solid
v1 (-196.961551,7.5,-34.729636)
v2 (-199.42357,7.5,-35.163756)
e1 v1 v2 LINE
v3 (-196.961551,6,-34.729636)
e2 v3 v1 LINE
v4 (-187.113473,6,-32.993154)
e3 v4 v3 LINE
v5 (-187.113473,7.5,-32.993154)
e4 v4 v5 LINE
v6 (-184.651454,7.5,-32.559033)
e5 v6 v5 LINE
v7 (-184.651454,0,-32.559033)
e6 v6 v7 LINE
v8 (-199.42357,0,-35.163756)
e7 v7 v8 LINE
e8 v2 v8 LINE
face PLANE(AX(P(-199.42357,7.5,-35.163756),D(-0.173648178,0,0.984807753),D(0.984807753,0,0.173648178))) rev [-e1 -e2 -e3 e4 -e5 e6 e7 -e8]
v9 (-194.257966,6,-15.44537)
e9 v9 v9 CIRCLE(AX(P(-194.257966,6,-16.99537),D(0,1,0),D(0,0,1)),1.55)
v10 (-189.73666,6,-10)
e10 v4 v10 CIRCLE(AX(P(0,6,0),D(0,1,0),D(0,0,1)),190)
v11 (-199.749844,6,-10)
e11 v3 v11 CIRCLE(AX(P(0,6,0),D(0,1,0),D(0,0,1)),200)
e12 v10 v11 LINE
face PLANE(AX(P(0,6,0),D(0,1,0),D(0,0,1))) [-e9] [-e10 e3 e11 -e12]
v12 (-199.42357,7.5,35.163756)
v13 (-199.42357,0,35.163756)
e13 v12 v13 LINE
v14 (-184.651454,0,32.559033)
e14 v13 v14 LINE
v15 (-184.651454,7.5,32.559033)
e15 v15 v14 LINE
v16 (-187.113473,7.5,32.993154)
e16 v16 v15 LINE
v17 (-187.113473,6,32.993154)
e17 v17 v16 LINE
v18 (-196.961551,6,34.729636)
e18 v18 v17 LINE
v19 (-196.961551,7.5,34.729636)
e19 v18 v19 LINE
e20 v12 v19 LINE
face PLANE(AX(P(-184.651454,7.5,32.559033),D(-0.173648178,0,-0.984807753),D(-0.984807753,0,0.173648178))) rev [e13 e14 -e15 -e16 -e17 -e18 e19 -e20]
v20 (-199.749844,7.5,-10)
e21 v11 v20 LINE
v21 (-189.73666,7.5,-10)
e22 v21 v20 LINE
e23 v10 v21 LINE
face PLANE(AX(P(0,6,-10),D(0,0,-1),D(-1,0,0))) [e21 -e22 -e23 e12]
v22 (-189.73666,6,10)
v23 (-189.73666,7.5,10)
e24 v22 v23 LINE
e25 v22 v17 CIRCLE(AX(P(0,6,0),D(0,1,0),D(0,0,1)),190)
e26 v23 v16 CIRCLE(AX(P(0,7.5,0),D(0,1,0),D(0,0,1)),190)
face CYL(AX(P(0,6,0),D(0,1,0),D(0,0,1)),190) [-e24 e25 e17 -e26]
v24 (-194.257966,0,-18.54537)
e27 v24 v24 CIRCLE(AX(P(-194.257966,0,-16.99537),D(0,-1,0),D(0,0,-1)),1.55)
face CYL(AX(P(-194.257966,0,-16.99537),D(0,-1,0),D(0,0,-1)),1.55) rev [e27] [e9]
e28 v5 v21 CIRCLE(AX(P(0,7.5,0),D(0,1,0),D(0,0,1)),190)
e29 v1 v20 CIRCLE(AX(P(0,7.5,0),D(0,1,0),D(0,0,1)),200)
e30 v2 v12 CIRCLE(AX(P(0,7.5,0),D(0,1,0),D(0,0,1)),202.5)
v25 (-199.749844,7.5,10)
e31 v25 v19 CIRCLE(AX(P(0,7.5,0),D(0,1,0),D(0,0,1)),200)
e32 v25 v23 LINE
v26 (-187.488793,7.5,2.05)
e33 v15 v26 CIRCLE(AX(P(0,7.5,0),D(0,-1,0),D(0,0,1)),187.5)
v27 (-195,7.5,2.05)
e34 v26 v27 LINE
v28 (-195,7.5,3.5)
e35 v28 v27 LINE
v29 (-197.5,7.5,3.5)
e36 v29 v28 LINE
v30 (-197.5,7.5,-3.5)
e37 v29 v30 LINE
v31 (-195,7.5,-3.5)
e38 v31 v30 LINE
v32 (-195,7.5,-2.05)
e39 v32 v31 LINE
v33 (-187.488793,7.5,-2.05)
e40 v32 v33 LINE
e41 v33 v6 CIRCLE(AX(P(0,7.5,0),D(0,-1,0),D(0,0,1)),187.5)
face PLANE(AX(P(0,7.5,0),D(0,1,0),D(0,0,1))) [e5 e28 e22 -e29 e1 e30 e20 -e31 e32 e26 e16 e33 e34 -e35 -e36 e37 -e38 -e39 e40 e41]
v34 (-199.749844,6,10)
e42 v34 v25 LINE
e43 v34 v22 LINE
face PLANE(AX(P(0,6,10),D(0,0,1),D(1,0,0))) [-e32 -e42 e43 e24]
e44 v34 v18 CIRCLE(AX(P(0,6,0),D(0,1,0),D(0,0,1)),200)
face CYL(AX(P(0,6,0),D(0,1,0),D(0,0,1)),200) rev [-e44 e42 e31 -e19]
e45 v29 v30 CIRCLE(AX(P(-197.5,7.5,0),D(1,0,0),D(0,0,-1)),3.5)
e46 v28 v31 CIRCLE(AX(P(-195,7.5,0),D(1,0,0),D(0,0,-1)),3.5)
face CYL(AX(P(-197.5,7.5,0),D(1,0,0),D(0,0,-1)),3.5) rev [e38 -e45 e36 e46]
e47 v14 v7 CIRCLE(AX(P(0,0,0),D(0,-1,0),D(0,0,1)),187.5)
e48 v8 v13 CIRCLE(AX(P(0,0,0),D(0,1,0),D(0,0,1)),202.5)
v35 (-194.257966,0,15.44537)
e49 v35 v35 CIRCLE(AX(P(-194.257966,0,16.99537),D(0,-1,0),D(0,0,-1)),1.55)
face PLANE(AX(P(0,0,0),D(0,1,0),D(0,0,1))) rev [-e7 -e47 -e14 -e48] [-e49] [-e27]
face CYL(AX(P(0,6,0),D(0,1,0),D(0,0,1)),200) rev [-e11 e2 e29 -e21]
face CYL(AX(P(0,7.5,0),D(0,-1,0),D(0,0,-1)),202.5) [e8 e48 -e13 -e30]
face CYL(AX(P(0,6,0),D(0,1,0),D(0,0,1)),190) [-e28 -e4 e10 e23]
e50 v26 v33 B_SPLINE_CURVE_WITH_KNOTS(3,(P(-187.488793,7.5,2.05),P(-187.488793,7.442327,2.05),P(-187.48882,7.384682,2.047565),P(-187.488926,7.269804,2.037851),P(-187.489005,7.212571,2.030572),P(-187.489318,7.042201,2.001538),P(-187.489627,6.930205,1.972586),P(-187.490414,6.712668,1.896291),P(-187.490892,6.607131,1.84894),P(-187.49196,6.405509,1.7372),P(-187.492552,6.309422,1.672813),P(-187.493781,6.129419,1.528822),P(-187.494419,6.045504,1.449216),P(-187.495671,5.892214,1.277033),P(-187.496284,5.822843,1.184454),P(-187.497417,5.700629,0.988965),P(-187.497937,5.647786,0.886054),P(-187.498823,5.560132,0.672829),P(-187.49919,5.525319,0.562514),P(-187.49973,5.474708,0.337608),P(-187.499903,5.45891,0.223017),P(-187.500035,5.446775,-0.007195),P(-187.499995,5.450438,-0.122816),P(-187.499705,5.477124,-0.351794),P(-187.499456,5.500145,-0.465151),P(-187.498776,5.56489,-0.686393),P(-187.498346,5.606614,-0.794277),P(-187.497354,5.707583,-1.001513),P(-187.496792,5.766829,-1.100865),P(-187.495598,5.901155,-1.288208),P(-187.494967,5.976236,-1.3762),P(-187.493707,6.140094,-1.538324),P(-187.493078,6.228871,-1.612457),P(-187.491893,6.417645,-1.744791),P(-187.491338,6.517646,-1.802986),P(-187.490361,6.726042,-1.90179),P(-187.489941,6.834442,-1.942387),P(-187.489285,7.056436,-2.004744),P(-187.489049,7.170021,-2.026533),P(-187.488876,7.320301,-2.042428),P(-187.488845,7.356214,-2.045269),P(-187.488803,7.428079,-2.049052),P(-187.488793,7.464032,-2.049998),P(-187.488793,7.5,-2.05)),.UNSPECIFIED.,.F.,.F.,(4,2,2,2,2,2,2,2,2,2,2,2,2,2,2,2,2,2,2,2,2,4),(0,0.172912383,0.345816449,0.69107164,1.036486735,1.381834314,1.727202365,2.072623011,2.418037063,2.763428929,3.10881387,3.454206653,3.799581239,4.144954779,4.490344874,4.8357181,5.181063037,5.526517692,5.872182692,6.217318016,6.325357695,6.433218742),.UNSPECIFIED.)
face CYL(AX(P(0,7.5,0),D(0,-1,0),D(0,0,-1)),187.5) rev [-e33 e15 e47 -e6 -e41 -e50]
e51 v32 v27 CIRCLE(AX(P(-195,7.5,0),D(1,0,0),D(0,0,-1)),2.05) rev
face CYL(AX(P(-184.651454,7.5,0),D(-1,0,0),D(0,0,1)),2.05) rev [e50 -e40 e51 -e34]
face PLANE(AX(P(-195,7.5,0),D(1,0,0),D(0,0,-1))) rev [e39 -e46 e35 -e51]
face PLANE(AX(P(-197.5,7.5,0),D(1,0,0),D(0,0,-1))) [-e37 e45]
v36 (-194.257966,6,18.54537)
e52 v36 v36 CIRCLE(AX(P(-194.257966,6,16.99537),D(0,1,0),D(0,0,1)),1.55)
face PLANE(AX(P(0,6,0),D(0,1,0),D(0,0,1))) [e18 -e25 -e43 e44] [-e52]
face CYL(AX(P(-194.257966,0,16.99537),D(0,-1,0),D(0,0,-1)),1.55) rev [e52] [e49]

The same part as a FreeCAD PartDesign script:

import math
import FreeCAD as App
import Part
import Sketcher

V = App.Vector
Q = App.Units.Quantity

doc = App.newDocument("Part")
params = doc.addObject("Spreadsheet::Sheet", "Params")
for row, (alias, value) in enumerate([
    ("sketch1_radius", "202.5 mm"),
    ("sketch1_radius2", "187.5 mm"),
    ("pad1_length", "7.5 mm"),
    ("sketch2_radius", "200 mm"),
    ("sketch2_radius2", "190 mm"),
    ("pocket1_length", "1.5 mm"),
    ("sketch3_diameter", "7 mm"),
    ("pocket2_length", "2.5 mm"),
    ("sketch4_diameter", "4.1 mm"),
    ("sketch5_diameter", "3.1 mm"),
    ("hole_diameter", "3.1 mm"),
], start=1):
    params.set(f"A{row}", alias)
    params.set(f"B{row}", "=" + value)
    params.setAlias(f"B{row}", alias)

body = doc.addObject("PartDesign::Body", "Body")

sketch1 = body.newObject("Sketcher::SketchObject", "Sketch")
sketch1.AttachmentSupport = (doc.getObject("XZ_Plane"), [""])
sketch1.MapMode = "FlatFace"
sketch1.addGeometry(Part.LineSegment(V(-185, -33, 0), V(-199, -35, 0)), False)
sketch1.addGeometry(Part.ArcOfCircle(Part.Circle(V(0, 0, 0), V(0, 0, 1), 203), math.radians(170), math.radians(190)), False)
sketch1.addGeometry(Part.LineSegment(V(-199, 35, 0), V(-185, 33, 0)), False)
sketch1.addGeometry(Part.ArcOfCircle(Part.Circle(V(0, 0, 0), V(0, 0, 1), 188), math.radians(170), math.radians(190)), False)
sketch1.addConstraint(Sketcher.Constraint("Coincident", 0, 2, 1, 2))
sketch1.addConstraint(Sketcher.Constraint("Coincident", 1, 1, 2, 1))
sketch1.addConstraint(Sketcher.Constraint("Coincident", 2, 2, 3, 1))
sketch1.addConstraint(Sketcher.Constraint("Coincident", 3, 2, 0, 1))
sketch1.addConstraint(Sketcher.Constraint("Coincident", 1, 3, -1, 1))
sketch1.addConstraint(Sketcher.Constraint("Coincident", 3, 3, -1, 1))
sketch1.addConstraint(Sketcher.Constraint("Vertical", 0, 2, 1, 1))
sketch1.addConstraint(Sketcher.Constraint("Vertical", 2, 2, 3, 2))
sketch1.addConstraint(Sketcher.Constraint("Radius", 1, Q("202.5 mm")))
sketch1.addConstraint(Sketcher.Constraint("Radius", 3, Q("187.5 mm")))
sketch1.addConstraint(Sketcher.Constraint("Angle", 0, Q("-170 deg")))
sketch1.addConstraint(Sketcher.Constraint("DistanceX", 0, 2, -1, 1, Q("199.42357 mm")))
sketch1.setExpression("Constraints[8]", "Params.sketch1_radius")
sketch1.setExpression("Constraints[9]", "Params.sketch1_radius2")
pad1 = body.newObject("PartDesign::Pad", "Pad")
pad1.Profile = sketch1
pad1.setExpression("Length", "Params.pad1_length")
pad1.Reversed = True

sketch2 = body.newObject("Sketcher::SketchObject", "Sketch001")
sketch2.AttachmentSupport = (doc.getObject("XZ_Plane"), [""])
sketch2.MapMode = "FlatFace"
sketch2.AttachmentOffset = App.Placement(V(0, 0, -7.5), App.Rotation())
sketch2.addGeometry(Part.LineSegment(V(-187, -33, 0), V(-197, -35, 0)), False)
sketch2.addGeometry(Part.ArcOfCircle(Part.Circle(V(0, 0, 0), V(0, 0, 1), 200), math.radians(-177.13), math.radians(-170)), False)
sketch2.addGeometry(Part.LineSegment(V(-200, -10, 0), V(-190, -10, 0)), False)
sketch2.addGeometry(Part.ArcOfCircle(Part.Circle(V(0, 0, 0), V(0, 0, 1), 190), math.radians(-176.98), math.radians(-170)), False)
sketch2.addGeometry(Part.LineSegment(V(-190, 10, 0), V(-200, 10, 0)), False)
sketch2.addGeometry(Part.ArcOfCircle(Part.Circle(V(0, 0, 0), V(0, 0, 1), 200), math.radians(170), math.radians(177.13)), False)
sketch2.addGeometry(Part.LineSegment(V(-197, 35, 0), V(-187, 33, 0)), False)
sketch2.addGeometry(Part.ArcOfCircle(Part.Circle(V(0, 0, 0), V(0, 0, 1), 190), math.radians(170), math.radians(176.98)), False)
sketch2.addConstraint(Sketcher.Constraint("Coincident", 0, 2, 1, 2))
sketch2.addConstraint(Sketcher.Constraint("Coincident", 1, 1, 2, 1))
sketch2.addConstraint(Sketcher.Constraint("Coincident", 2, 2, 3, 1))
sketch2.addConstraint(Sketcher.Constraint("Coincident", 3, 2, 0, 1))
sketch2.addConstraint(Sketcher.Constraint("Coincident", 4, 2, 5, 2))
sketch2.addConstraint(Sketcher.Constraint("Coincident", 5, 1, 6, 1))
sketch2.addConstraint(Sketcher.Constraint("Coincident", 6, 2, 7, 1))
sketch2.addConstraint(Sketcher.Constraint("Coincident", 7, 2, 4, 1))
sketch2.addConstraint(Sketcher.Constraint("Horizontal", 2))
sketch2.addConstraint(Sketcher.Constraint("Horizontal", 4))
sketch2.addConstraint(Sketcher.Constraint("Coincident", 1, 3, -1, 1))
sketch2.addConstraint(Sketcher.Constraint("Coincident", 3, 3, -1, 1))
sketch2.addConstraint(Sketcher.Constraint("Coincident", 5, 3, -1, 1))
sketch2.addConstraint(Sketcher.Constraint("Coincident", 7, 3, -1, 1))
sketch2.addConstraint(Sketcher.Constraint("Equal", 1, 5))
sketch2.addConstraint(Sketcher.Constraint("Equal", 3, 7))
sketch2.addConstraint(Sketcher.Constraint("Vertical", 1, 1, 4, 2))
sketch2.addConstraint(Sketcher.Constraint("Vertical", 0, 2, 5, 1))
sketch2.addConstraint(Sketcher.Constraint("Vertical", 3, 2, 6, 2))
sketch2.addConstraint(Sketcher.Constraint("Radius", 1, Q("200 mm")))
sketch2.addConstraint(Sketcher.Constraint("Radius", 3, Q("190 mm")))
sketch2.addConstraint(Sketcher.Constraint("Angle", 0, Q("-170 deg")))
sketch2.addConstraint(Sketcher.Constraint("DistanceY", 1, 1, -1, 1, Q("10 mm")))
sketch2.addConstraint(Sketcher.Constraint("DistanceX", 0, 2, -1, 1, Q("196.961551 mm")))
sketch2.setExpression("Constraints[19]", "Params.sketch2_radius")
sketch2.setExpression("Constraints[20]", "Params.sketch2_radius2")
pocket1 = body.newObject("PartDesign::Pocket", "Pocket")
pocket1.Profile = sketch2
pocket1.setExpression("Length", "Params.pocket1_length")
pocket1.Reversed = True

sketch3 = body.newObject("Sketcher::SketchObject", "Sketch002")
sketch3.AttachmentSupport = (doc.getObject("YZ_Plane"), [""])
sketch3.MapMode = "FlatFace"
sketch3.AttachmentOffset = App.Placement(V(0, 0, -195), App.Rotation())
sketch3.addGeometry(Part.Circle(V(7.5, 0, 0), V(0, 0, 1), 3.5), False)
sketch3.addConstraint(Sketcher.Constraint("PointOnObject", 0, 3, -1))
sketch3.addConstraint(Sketcher.Constraint("Diameter", 0, Q("7 mm")))
sketch3.addConstraint(Sketcher.Constraint("DistanceX", -1, 1, 0, 3, Q("7.5 mm")))
sketch3.setExpression("Constraints[1]", "Params.sketch3_diameter")
pocket2 = body.newObject("PartDesign::Pocket", "Pocket001")
pocket2.Profile = sketch3
pocket2.setExpression("Length", "Params.pocket2_length")

sketch4 = body.newObject("Sketcher::SketchObject", "Sketch003")
sketch4.AttachmentSupport = (doc.getObject("YZ_Plane"), [""])
sketch4.MapMode = "FlatFace"
sketch4.AttachmentOffset = App.Placement(V(0, 0, -195), App.Rotation())
sketch4.addGeometry(Part.Circle(V(7.5, 0, 0), V(0, 0, 1), 2), False)
sketch4.addConstraint(Sketcher.Constraint("PointOnObject", 0, 3, -1))
sketch4.addConstraint(Sketcher.Constraint("Diameter", 0, Q("4.1 mm")))
sketch4.addConstraint(Sketcher.Constraint("DistanceX", -1, 1, 0, 3, Q("7.5 mm")))
sketch4.setExpression("Constraints[1]", "Params.sketch4_diameter")
pocket3 = body.newObject("PartDesign::Pocket", "Pocket002")
pocket3.Profile = sketch4
pocket3.Type = "ThroughAll"
pocket3.Reversed = True

sketch5 = body.newObject("Sketcher::SketchObject", "Sketch004")
sketch5.AttachmentSupport = (doc.getObject("XZ_Plane"), [""])
sketch5.MapMode = "FlatFace"
sketch5.addGeometry(Part.Circle(V(-194.3, 17, 0), V(0, 0, 1), 1.6), False)
sketch5.addGeometry(Part.Circle(V(-194.3, -17, 0), V(0, 0, 1), 1.6), False)
sketch5.addConstraint(Sketcher.Constraint("Equal", 0, 1))
sketch5.addConstraint(Sketcher.Constraint("Symmetric", 0, 3, 1, 3, -1))
sketch5.addConstraint(Sketcher.Constraint("Diameter", 0, Q("3.1 mm")))
sketch5.addConstraint(Sketcher.Constraint("DistanceY", -1, 1, 0, 3, Q("16.99537 mm")))
sketch5.addConstraint(Sketcher.Constraint("DistanceX", 0, 3, -1, 1, Q("194.257966 mm")))
sketch5.setExpression("Constraints[2]", "Params.sketch5_diameter")
doc.recompute()
hole = body.newObject("PartDesign::Hole", "Hole")
hole.Profile = sketch5
hole.ThreadType = "None"
hole.setExpression("Diameter", "Params.hole_diameter")
hole.DepthType = "ThroughAll"

doc.recompute()
